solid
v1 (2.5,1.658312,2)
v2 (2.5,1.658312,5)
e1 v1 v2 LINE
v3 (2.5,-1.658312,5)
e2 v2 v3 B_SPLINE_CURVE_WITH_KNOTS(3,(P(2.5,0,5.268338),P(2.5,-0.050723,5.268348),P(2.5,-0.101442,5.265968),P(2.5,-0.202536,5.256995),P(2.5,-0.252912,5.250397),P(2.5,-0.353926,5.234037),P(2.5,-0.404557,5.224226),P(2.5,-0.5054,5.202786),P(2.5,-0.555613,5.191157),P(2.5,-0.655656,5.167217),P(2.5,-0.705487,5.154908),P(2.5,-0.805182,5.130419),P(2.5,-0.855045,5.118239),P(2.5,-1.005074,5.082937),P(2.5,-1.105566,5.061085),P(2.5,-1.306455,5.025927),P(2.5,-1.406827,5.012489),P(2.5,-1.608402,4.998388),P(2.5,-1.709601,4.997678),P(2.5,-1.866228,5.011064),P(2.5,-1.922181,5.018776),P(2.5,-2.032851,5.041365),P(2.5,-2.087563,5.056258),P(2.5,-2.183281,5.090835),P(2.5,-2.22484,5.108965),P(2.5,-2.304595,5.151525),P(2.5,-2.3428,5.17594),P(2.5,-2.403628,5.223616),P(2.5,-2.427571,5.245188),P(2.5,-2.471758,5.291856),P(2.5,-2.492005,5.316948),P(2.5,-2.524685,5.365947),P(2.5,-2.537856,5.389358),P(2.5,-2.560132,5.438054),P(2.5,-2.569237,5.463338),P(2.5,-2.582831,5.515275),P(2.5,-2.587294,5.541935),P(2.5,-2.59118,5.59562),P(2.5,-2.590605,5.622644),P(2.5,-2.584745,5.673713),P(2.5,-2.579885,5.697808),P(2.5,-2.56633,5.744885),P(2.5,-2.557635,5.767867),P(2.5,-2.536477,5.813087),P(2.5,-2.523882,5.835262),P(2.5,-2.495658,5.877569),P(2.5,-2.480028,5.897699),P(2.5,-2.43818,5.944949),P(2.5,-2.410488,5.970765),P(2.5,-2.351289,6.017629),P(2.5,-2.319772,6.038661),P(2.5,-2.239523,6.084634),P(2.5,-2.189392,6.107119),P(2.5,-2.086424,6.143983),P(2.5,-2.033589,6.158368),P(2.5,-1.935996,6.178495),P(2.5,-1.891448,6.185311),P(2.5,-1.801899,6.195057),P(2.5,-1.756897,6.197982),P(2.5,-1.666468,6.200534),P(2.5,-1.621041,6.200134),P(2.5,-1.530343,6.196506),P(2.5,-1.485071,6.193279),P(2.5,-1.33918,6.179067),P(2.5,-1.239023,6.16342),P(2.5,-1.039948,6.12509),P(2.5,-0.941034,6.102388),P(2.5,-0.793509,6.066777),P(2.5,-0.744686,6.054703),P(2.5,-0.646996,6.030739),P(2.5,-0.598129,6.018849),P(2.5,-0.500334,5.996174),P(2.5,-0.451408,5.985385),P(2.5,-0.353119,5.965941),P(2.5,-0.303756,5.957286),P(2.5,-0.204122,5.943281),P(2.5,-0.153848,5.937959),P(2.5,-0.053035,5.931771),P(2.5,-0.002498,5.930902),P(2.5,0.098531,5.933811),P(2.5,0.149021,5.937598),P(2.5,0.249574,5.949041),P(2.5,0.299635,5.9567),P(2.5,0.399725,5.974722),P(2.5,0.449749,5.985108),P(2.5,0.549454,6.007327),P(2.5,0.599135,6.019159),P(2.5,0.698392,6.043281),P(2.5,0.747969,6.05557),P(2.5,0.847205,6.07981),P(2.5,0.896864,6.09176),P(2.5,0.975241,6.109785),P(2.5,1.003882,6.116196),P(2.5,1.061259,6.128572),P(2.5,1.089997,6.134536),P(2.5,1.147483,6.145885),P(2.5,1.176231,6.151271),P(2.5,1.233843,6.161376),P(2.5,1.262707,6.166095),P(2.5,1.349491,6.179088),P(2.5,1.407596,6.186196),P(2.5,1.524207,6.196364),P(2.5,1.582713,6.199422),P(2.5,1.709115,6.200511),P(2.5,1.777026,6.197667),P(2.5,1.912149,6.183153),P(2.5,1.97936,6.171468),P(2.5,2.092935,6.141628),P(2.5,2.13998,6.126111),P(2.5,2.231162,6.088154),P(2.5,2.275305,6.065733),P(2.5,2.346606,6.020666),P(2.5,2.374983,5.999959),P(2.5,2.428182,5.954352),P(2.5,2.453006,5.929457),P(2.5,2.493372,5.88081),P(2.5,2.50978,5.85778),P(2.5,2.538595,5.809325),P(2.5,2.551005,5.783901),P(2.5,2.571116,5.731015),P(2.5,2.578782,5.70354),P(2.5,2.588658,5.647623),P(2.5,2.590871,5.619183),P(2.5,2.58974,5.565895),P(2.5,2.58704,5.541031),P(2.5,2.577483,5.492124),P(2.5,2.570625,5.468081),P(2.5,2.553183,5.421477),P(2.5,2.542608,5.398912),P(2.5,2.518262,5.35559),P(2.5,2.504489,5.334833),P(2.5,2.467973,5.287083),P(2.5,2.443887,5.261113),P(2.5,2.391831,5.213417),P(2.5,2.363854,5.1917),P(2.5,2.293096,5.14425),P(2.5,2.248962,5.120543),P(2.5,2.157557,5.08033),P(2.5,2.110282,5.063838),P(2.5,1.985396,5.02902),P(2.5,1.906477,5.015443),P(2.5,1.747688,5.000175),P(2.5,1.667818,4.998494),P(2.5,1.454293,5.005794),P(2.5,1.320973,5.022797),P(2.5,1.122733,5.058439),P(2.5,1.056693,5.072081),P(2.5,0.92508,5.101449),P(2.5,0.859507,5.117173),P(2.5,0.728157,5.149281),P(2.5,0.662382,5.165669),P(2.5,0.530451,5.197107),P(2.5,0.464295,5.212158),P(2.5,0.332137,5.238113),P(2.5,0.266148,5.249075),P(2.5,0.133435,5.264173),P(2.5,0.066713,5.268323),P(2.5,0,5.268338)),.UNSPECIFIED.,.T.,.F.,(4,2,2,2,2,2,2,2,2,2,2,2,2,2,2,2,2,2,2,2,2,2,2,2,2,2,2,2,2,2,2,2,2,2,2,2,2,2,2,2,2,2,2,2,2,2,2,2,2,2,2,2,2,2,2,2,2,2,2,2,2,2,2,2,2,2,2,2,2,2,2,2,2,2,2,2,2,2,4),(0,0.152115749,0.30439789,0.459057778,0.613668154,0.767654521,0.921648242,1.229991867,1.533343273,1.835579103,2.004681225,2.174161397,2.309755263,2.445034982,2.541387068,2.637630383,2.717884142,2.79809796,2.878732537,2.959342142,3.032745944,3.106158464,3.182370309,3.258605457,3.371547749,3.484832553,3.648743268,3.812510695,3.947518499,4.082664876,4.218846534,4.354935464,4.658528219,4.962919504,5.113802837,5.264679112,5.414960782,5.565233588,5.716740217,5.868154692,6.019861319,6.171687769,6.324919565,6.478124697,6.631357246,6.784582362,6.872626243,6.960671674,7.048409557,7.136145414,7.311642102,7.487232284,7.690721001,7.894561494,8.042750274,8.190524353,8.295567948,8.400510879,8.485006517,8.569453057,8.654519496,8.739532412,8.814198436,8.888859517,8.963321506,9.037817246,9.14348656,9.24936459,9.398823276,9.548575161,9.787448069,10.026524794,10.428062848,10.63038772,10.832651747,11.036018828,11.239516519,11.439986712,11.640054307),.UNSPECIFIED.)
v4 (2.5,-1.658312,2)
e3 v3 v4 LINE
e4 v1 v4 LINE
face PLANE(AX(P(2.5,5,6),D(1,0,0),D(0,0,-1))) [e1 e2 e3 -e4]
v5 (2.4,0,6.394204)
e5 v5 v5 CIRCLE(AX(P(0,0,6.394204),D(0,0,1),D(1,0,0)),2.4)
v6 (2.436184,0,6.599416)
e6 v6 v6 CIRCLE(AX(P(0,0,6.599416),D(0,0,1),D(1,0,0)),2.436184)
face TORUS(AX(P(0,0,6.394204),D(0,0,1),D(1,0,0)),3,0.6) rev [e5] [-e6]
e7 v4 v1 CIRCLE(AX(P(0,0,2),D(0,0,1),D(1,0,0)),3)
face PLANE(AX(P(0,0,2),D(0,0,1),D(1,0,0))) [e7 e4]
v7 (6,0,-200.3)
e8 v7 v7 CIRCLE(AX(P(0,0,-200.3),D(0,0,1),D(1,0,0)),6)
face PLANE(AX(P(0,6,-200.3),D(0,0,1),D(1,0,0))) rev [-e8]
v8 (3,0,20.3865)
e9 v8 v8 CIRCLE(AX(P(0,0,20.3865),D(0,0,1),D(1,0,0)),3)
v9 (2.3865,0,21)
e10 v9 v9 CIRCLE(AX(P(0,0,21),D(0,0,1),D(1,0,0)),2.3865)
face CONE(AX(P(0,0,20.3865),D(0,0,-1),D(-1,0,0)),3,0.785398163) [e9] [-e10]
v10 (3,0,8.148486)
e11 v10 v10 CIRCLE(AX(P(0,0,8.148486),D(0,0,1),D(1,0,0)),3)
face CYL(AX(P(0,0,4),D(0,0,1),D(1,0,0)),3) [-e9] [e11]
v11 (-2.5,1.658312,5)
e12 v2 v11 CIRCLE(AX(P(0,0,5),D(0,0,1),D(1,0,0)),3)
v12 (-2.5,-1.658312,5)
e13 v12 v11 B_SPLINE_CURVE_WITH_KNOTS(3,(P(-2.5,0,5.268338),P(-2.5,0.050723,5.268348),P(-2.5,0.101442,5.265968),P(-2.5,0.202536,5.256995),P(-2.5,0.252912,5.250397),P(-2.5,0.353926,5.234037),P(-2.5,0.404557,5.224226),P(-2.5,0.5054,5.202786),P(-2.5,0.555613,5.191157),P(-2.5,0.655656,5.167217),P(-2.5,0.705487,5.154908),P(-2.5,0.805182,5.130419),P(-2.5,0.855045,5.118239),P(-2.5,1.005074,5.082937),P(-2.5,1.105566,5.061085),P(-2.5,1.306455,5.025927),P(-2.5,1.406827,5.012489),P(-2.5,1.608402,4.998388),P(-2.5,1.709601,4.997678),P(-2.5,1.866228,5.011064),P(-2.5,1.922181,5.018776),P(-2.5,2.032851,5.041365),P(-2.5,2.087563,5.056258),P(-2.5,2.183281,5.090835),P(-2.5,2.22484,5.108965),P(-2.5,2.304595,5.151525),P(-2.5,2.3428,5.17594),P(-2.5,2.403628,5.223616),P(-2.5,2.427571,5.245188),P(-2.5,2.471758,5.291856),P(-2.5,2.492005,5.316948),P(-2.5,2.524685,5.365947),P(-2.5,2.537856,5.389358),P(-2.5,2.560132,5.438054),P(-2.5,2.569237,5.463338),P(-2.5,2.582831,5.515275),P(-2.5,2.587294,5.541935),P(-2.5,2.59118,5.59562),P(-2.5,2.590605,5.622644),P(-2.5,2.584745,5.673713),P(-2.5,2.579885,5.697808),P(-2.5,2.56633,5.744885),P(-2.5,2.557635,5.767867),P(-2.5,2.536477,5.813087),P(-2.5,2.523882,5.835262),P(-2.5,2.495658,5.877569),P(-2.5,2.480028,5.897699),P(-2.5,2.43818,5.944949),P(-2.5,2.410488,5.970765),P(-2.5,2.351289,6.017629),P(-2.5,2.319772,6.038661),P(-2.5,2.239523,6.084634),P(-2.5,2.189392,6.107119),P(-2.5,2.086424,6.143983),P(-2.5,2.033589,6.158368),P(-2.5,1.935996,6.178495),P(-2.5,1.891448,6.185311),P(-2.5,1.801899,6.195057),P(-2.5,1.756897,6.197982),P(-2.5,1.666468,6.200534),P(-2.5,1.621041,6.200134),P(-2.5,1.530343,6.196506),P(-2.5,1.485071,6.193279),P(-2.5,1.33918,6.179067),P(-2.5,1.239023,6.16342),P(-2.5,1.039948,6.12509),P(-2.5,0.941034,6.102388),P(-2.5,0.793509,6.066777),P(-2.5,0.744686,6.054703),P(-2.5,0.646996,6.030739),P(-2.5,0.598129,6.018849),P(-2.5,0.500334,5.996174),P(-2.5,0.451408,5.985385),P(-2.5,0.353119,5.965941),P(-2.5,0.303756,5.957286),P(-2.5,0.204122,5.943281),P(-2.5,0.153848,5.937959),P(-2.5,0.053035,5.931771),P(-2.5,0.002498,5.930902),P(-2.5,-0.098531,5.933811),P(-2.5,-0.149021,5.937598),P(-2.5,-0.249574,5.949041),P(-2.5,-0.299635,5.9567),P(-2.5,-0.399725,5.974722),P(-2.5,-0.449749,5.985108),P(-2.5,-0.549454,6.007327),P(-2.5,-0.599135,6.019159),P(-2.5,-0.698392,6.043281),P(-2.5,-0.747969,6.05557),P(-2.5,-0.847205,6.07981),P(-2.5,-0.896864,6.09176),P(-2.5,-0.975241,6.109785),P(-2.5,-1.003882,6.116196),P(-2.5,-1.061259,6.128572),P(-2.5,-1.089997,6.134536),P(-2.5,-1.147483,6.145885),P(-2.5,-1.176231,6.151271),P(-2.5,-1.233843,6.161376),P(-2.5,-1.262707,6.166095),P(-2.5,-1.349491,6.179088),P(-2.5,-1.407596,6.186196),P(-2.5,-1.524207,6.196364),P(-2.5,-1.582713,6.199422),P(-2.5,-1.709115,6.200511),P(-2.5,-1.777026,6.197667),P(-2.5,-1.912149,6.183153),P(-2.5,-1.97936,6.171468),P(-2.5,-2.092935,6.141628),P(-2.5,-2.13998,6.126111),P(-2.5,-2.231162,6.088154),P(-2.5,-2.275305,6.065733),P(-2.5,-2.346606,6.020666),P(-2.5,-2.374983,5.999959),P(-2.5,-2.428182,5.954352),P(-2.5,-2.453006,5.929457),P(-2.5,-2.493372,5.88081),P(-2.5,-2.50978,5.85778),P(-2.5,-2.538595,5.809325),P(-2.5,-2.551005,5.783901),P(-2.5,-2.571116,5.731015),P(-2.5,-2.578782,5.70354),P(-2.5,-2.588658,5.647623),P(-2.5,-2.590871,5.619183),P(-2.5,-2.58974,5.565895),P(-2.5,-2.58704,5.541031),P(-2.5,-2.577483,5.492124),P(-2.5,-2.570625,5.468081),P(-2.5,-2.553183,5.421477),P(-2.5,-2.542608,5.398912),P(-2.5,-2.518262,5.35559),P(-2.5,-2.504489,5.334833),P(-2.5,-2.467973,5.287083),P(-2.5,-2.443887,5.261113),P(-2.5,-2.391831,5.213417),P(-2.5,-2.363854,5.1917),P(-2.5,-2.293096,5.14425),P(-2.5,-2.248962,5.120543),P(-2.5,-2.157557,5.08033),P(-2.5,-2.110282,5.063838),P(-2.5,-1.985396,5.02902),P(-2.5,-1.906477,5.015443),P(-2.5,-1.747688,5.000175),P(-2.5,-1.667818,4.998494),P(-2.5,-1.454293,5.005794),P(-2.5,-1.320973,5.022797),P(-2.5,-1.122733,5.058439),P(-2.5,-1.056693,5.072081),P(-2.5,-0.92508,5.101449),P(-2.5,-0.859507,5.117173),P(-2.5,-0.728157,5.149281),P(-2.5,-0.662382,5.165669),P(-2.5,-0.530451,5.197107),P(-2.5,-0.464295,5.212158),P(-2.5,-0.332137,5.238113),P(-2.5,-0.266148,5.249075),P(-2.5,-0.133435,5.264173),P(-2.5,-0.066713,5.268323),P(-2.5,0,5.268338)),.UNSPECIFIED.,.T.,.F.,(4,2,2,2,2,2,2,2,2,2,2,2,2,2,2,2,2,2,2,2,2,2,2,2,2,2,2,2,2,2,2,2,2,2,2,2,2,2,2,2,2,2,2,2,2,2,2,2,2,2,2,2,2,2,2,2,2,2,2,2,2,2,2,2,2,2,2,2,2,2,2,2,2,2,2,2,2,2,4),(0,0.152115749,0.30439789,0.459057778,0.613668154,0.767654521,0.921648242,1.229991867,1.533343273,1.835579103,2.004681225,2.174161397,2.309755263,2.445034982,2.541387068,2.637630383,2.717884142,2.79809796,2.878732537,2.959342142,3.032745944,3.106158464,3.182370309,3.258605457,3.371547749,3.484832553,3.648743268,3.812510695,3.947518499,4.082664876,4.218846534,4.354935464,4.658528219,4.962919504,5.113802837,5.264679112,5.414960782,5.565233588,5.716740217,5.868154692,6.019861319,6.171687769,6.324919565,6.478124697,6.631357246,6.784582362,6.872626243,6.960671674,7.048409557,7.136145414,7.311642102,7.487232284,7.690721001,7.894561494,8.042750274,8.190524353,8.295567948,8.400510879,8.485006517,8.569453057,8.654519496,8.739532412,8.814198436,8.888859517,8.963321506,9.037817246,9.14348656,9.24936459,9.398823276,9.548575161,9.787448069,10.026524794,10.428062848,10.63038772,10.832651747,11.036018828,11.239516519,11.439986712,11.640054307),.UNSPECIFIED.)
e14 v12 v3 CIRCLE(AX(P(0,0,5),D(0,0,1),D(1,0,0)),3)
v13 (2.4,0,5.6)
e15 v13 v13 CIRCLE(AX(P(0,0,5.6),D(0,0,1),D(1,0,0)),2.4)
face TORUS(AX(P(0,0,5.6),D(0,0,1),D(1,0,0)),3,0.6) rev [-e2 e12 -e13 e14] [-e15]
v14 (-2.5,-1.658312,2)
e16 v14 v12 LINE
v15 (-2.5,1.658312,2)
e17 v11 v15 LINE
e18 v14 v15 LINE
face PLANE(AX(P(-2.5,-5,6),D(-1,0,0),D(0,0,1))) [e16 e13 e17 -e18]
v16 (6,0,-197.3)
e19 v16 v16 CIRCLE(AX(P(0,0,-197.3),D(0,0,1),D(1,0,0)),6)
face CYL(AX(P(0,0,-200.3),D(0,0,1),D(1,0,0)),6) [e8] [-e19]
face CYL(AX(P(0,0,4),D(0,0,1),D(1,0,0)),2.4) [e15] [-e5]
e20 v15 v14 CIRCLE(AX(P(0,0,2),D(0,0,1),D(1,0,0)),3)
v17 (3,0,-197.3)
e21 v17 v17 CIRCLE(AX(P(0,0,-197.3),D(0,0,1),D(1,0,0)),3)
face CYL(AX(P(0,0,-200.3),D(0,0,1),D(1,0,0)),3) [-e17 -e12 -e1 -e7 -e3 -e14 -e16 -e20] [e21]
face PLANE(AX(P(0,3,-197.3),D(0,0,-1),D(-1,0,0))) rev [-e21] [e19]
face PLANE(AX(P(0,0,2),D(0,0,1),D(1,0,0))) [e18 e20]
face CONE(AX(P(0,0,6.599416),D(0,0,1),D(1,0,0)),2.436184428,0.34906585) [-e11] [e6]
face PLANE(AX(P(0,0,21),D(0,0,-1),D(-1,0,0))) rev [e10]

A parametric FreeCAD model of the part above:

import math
import FreeCAD as App
import Part
import Sketcher
Q = App.Units.Quantity


def add_polygon(sketch, points):
    """Adds a closed chain of lines whose ends are joined by coincident constraints."""
    first, n = sketch.GeometryCount, len(points)
    for a, b in zip(points, points[1:] + points[:1]):
        sketch.addGeometry(Part.LineSegment(App.Vector(*a, 0), App.Vector(*b, 0)), False)
    for i in range(n):
        sketch.addConstraint(Sketcher.Constraint("Coincident", first + i, 2, first + (i + 1) % n, 1))

doc = App.newDocument("Part")
body = doc.addObject("PartDesign::Body", "Body")

sketch1 = doc.addObject("Sketcher::SketchObject", "Sketch")
body.addObject(sketch1)
sketch1.AttachmentSupport = (doc.YZ_Plane, [""])
sketch1.MapMode = "FlatFace"
add_polygon(sketch1, [(3, 5), (0, 5), (0, -200.3), (6, -200.3), (6, -197.3), (3, -197.3)])
sketch1.addConstraint([
    Sketcher.Constraint("Horizontal", 0),
    Sketcher.Constraint("Vertical", 1),
    Sketcher.Constraint("Horizontal", 2),
    Sketcher.Constraint("Vertical", 3),
    Sketcher.Constraint("Horizontal", 4),
    Sketcher.Constraint("Vertical", 5),
    Sketcher.Constraint("PointOnObject", 0, 2, -2),
    Sketcher.Constraint("Equal", 0, 4),
    Sketcher.Constraint("Equal", 4, 3),
    Sketcher.Constraint("DistanceX", 0, 2, 0, 1, Q("3 mm")),
    Sketcher.Constraint("DistanceY", 1, 2, 1, 1, Q("205.3 mm")),
    Sketcher.Constraint("DistanceY", -1, 1, 0, 2, Q("5 mm")),
])
revolution = doc.addObject("PartDesign::Revolution", "Revolution")
body.addObject(revolution)
revolution.Profile = sketch1
revolution.ReferenceAxis = (sketch1, ["V_Axis"])
revolution.Angle = 360

sketch2 = doc.addObject("Sketcher::SketchObject", "Sketch001")
body.addObject(sketch2)
sketch2.AttachmentSupport = (doc.YZ_Plane, [""])
sketch2.MapMode = "FlatFace"
sketch2.addGeometry([
    Part.LineSegment(App.Vector(2.39, 21, 0), App.Vector(0, 21, 0)),
    Part.LineSegment(App.Vector(0, 21, 0), App.Vector(0, 4, 0)),
    Part.LineSegment(App.Vector(0, 4, 0), App.Vector(3, 4, 0)),
    Part.LineSegment(App.Vector(3, 4, 0), App.Vector(3, 5, 0)),
    Part.ArcOfCircle(Part.Circle(App.Vector(3, 5.6, 0), App.Vector(0, 0, 1), 0.6), math.radians(180), math.radians(270)),
    Part.LineSegment(App.Vector(2.4, 5.6, 0), App.Vector(2.4, 6.39, 0)),
    Part.ArcOfCircle(Part.Circle(App.Vector(3, 6.39, 0), App.Vector(0, 0, 1), 0.6), math.radians(160), math.radians(180)),
    Part.LineSegment(App.Vector(2.44, 6.6, 0), App.Vector(3, 8.15, 0)),
    Part.LineSegment(App.Vector(3, 8.15, 0), App.Vector(3, 20.39, 0)),
    Part.LineSegment(App.Vector(3, 20.39, 0), App.Vector(2.39, 21, 0)),
], False)
sketch2.addConstraint([
    Sketcher.Constraint("Coincident", 0, 2, 1, 1),
    Sketcher.Constraint("Coincident", 1, 2, 2, 1),
    Sketcher.Constraint("Coincident", 2, 2, 3, 1),
    Sketcher.Constraint("Coincident", 3, 2, 4, 2),
    Sketcher.Constraint("Tangent", 4, 1, 5, 1),
    Sketcher.Constraint("Tangent", 5, 2, 6, 2),
    Sketcher.Constraint("Tangent", 6, 1, 7, 1),
    Sketcher.Constraint("Coincident", 7, 2, 8, 1),
    Sketcher.Constraint("Coincident", 8, 2, 9, 1),
    Sketcher.Constraint("Coincident", 9, 2, 0, 1),
    Sketcher.Constraint("Horizontal", 0),
    Sketcher.Constraint("Vertical", 1),
    Sketcher.Constraint("Horizontal", 2),
    Sketcher.Constraint("Vertical", 3),
    Sketcher.Constraint("Vertical", 5),
    Sketcher.Constraint("Vertical", 8),
    Sketcher.Constraint("Equal", 4, 6),
    Sketcher.Constraint("PointOnObject", 0, 2, -2),
    Sketcher.Constraint("Vertical", 6, 3, 2, 2),
    Sketcher.Constraint("Vertical", 3, 2, 7, 2),
    Sketcher.Constraint("Radius", 4, Q("0.6 mm")),
    Sketcher.Constraint("DistanceX", 2, 1, 2, 2, Q("3 mm")),
    Sketcher.Constraint("DistanceY", 1, 2, 1, 1, Q("17 mm")),
    Sketcher.Constraint("DistanceY", 3, 1, 3, 2, Q("1 mm")),
    Sketcher.Constraint("Angle", 7, Q("70 deg")),
    Sketcher.Constraint("Angle", 9, Q("135 deg")),
    Sketcher.Constraint("DistanceY", -1, 1, 0, 2, Q("21 mm")),
    Sketcher.Constraint("DistanceX", 0, 2, 0, 1, Q("2.3865 mm")),
    Sketcher.Constraint("DistanceY", 5, 1, 5, 2, Q("0.794204 mm")),
])
revolution2 = doc.addObject("PartDesign::Revolution", "Revolution001")
body.addObject(revolution2)
revolution2.Profile = sketch2
revolution2.ReferenceAxis = (sketch2, ["V_Axis"])
revolution2.Angle = 360

sketch3 = doc.addObject("Sketcher::SketchObject", "Sketch002")
body.addObject(sketch3)
sketch3.AttachmentSupport = (doc.XY_Plane, [""])
sketch3.MapMode = "FlatFace"
sketch3.AttachmentOffset = App.Placement(App.Vector(0, 0, 2), App.Rotation())
add_polygon(sketch3, [(-5, 10), (-5, -5), (-2.5, -5), (-2.5, 5), (2.5, 5), (2.5, -5), (5, -5), (5, 10)])
sketch3.addConstraint([
    Sketcher.Constraint("Vertical", 0),
    Sketcher.Constraint("Horizontal", 1),
    Sketcher.Constraint("Vertical", 2),
    Sketcher.Constraint("Horizontal", 3),
    Sketcher.Constraint("Vertical", 4),
    Sketcher.Constraint("Horizontal", 5),
    Sketcher.Constraint("Vertical", 6),
    Sketcher.Constraint("Horizontal", 7),
    Sketcher.Constraint("Symmetric", 1, 2, 3, 2, -1, 1),
    Sketcher.Constraint("Symmetric", 0, 2, 5, 2, -2),
    Sketcher.Constraint("Equal", 7, 2),
    Sketcher.Constraint("DistanceX", 3, 1, 3, 2, Q("5 mm")),
    Sketcher.Constraint("DistanceX", 7, 2, 7, 1, Q("10 mm")),
    Sketcher.Constraint("DistanceY", 0, 2, 0, 1, Q("15 mm")),
])
pocket1 = doc.addObject("PartDesign::Pocket", "Pocket")
body.addObject(pocket1)
pocket1.Profile = sketch3
pocket1.Length = 4
pocket1.Reversed = True

doc.recompute()
